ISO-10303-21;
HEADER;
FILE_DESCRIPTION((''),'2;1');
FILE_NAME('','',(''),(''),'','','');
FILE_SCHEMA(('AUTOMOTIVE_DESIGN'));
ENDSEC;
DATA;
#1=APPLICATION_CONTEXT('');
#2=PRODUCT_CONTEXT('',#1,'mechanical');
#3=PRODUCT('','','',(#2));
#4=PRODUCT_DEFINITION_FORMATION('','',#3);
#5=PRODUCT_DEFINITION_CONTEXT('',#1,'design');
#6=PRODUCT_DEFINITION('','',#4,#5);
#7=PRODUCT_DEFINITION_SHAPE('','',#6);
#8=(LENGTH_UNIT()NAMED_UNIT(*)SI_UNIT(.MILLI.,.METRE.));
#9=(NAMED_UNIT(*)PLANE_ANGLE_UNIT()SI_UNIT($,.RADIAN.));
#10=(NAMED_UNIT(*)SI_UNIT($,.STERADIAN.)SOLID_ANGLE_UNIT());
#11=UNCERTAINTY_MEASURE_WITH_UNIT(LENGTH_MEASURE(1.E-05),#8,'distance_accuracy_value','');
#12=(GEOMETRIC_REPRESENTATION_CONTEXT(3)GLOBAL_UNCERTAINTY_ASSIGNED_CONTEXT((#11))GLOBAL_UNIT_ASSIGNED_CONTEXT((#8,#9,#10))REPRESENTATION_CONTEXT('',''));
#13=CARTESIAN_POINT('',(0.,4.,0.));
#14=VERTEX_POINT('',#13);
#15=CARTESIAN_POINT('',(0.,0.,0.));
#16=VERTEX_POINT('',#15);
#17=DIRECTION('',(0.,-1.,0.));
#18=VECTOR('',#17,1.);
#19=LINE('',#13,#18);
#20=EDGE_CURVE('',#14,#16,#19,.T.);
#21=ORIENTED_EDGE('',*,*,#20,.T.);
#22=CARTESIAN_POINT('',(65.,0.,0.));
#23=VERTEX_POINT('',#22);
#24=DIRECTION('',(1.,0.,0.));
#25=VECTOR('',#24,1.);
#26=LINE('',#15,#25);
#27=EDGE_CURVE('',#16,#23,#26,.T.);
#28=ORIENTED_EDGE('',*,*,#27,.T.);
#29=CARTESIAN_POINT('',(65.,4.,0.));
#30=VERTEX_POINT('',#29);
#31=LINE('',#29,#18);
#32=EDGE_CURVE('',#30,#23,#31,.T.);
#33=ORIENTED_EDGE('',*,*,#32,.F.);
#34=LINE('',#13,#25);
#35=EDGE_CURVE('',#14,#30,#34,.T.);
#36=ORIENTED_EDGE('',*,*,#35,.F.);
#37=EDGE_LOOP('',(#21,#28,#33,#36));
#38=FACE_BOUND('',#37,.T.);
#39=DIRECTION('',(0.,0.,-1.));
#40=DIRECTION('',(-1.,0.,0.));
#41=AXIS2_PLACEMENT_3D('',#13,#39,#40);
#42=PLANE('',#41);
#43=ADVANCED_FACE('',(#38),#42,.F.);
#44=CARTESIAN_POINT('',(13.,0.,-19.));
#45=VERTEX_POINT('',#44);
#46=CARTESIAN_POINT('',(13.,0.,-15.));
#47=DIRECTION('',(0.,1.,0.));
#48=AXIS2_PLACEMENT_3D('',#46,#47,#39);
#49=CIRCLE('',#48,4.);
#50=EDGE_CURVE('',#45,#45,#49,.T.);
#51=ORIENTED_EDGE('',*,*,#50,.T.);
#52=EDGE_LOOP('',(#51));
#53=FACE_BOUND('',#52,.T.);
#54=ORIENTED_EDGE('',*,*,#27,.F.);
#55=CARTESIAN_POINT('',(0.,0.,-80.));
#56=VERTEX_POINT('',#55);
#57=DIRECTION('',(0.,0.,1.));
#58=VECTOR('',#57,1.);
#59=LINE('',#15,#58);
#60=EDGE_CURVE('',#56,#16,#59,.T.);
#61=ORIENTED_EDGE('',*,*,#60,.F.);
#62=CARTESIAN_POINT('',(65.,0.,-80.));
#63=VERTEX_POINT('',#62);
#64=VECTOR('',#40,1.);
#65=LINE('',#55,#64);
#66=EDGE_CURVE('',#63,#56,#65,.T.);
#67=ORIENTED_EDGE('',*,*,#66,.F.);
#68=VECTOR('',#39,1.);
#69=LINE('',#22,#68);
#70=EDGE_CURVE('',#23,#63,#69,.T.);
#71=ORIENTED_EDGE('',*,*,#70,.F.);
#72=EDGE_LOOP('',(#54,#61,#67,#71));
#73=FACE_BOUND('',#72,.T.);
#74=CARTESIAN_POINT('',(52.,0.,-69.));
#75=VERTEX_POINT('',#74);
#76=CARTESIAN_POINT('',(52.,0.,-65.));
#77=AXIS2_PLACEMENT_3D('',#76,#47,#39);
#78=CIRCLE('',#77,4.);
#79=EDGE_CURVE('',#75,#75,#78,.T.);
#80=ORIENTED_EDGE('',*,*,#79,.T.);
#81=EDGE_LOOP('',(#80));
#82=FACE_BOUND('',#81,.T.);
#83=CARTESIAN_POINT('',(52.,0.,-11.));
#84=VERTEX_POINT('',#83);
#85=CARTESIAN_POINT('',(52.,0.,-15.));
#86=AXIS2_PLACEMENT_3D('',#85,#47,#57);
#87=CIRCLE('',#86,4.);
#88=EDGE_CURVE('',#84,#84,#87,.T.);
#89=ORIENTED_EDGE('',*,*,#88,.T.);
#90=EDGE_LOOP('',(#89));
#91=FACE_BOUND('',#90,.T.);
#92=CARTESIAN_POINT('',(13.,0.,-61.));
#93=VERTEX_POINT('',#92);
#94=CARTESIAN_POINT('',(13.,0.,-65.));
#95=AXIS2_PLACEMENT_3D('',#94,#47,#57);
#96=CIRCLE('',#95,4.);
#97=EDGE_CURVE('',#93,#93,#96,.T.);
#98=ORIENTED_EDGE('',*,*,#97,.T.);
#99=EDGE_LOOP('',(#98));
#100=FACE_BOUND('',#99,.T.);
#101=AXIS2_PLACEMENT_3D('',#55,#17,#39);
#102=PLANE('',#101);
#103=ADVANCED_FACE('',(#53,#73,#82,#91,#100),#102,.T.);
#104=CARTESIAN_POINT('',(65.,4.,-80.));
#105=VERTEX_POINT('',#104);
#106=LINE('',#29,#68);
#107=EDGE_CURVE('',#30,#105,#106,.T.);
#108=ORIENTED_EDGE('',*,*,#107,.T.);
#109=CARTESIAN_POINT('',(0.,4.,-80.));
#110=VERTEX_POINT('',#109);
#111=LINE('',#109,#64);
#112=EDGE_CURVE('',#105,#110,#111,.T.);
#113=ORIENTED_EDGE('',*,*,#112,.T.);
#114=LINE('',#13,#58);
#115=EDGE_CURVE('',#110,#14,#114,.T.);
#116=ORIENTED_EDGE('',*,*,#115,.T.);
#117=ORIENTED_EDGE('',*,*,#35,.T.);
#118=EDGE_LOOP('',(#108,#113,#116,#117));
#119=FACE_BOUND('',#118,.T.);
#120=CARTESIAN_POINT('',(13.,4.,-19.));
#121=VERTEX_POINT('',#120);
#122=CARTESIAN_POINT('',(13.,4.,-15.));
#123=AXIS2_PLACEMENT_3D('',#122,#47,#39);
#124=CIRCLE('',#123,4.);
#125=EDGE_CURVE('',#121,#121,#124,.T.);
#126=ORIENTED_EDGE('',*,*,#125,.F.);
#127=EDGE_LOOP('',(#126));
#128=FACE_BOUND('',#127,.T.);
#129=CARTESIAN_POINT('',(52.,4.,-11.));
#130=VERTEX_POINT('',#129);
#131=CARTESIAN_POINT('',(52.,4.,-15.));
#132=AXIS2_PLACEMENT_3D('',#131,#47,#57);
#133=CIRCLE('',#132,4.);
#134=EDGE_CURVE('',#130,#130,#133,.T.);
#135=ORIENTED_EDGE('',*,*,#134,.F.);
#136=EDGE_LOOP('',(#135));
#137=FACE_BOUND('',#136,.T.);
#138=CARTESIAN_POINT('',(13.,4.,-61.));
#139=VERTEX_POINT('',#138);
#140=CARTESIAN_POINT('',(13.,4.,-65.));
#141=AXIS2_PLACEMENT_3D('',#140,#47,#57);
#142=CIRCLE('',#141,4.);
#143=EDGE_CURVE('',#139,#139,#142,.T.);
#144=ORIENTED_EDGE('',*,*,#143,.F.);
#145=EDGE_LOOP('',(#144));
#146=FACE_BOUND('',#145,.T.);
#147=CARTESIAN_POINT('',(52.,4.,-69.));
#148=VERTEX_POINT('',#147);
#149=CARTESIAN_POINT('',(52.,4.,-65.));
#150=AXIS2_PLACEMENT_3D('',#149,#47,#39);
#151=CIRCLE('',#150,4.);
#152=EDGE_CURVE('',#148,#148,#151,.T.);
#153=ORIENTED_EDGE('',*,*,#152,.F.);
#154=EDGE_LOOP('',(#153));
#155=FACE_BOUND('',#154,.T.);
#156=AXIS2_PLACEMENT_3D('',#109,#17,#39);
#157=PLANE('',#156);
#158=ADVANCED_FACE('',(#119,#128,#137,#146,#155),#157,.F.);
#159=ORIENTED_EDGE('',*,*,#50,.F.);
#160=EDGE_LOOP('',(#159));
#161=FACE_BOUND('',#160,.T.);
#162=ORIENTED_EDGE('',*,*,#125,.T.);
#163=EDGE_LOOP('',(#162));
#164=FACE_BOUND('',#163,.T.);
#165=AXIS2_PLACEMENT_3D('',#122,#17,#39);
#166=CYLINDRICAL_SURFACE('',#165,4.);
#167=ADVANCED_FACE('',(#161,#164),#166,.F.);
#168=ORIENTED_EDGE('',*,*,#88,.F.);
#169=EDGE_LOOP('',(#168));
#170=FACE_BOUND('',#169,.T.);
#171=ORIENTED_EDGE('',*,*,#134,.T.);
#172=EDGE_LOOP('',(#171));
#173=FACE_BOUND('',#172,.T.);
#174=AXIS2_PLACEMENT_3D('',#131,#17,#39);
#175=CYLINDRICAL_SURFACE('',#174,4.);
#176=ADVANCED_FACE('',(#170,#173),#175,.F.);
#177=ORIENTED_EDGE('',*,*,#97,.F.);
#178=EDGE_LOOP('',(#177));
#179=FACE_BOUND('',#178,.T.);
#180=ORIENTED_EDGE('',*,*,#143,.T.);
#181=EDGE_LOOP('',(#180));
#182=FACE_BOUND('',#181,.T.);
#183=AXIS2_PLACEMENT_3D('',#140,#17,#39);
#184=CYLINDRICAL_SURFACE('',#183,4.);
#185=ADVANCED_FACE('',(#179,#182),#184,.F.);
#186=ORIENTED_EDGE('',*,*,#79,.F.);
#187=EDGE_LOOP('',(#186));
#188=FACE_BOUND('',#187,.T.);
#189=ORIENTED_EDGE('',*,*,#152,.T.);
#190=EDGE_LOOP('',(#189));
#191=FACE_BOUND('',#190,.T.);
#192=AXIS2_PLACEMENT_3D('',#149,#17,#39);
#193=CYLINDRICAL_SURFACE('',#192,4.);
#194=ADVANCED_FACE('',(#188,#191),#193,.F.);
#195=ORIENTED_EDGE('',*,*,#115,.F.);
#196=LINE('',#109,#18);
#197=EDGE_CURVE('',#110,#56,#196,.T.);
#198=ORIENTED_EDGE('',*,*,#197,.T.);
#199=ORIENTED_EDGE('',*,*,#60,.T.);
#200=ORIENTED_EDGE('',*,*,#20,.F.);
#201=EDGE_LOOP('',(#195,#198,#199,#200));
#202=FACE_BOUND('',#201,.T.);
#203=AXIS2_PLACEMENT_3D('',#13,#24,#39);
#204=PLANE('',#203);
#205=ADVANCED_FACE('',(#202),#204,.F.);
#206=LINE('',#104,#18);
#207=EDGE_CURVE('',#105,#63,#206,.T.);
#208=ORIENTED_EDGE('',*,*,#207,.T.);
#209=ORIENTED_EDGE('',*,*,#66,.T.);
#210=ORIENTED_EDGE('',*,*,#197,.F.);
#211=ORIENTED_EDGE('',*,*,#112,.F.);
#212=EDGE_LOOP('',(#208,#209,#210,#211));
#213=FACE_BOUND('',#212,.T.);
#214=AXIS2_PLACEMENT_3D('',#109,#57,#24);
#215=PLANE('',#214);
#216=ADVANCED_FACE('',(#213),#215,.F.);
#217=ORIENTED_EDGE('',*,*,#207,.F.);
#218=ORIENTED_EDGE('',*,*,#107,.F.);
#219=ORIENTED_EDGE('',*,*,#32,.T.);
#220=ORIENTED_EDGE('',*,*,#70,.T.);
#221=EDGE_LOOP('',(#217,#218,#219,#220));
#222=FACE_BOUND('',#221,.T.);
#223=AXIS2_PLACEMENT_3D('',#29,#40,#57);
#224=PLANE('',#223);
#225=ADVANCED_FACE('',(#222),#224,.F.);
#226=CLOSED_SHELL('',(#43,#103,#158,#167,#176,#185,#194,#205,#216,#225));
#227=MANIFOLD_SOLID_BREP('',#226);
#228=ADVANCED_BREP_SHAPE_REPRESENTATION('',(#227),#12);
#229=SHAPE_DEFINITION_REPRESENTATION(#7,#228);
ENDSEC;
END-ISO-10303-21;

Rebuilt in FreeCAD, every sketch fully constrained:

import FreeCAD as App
import Part
import Sketcher

V = App.Vector


def add_polygon(sketch, points):
    """Adds a closed chain of lines whose ends are joined by coincident constraints."""
    first, n = sketch.GeometryCount, len(points)
    for a, b in zip(points, points[1:] + points[:1]):
        sketch.addGeometry(Part.LineSegment(App.Vector(*a, 0), App.Vector(*b, 0)), False)
    for i in range(n):
        sketch.addConstraint(Sketcher.Constraint("Coincident", first + i, 2, first + (i + 1) % n, 1))

doc = App.newDocument("Part")
params = doc.addObject("Spreadsheet::Sheet", "Params")
for row, (alias, value) in enumerate([
    ("sketch1_diameter", "8 mm"),
    ("sketch1_width", "65 mm"),
    ("sketch1_height", "80 mm"),
    ("pad1_length", "4 mm"),
], start=1):
    params.set(f"A{row}", alias)
    params.set(f"B{row}", "=" + value)
    params.setAlias(f"B{row}", alias)

body = doc.addObject("PartDesign::Body", "Body")

# Sketch on XZ plane
sketch1 = doc.addObject("Sketcher::SketchObject", "Sketch")
body.addObject(sketch1)
sketch1.AttachmentSupport = (doc.XZ_Plane, [""])
sketch1.MapMode = "FlatFace"
add_polygon(sketch1, [(0, -80), (0, 0), (65, 0), (65, -80)])  # lines 0-3
sketch1.addGeometry(Part.Circle(V(13, -15, 0), V(0, 0, 1), 4), False)  # 4
sketch1.addGeometry(Part.Circle(V(52, -15, 0), V(0, 0, 1), 4), False)  # 5
sketch1.addGeometry(Part.Circle(V(13, -65, 0), V(0, 0, 1), 4), False)  # 6
sketch1.addGeometry(Part.Circle(V(52, -65, 0), V(0, 0, 1), 4), False)  # 7
sketch1.addConstraint(Sketcher.Constraint("Vertical", 0))
sketch1.addConstraint(Sketcher.Constraint("Horizontal", 1))
sketch1.addConstraint(Sketcher.Constraint("Vertical", 2))
sketch1.addConstraint(Sketcher.Constraint("Horizontal", 3))
sketch1.addConstraint(Sketcher.Constraint("Coincident", 0, 2, -1, 1))
sketch1.addConstraint(Sketcher.Constraint("Equal", 4, 5))
sketch1.addConstraint(Sketcher.Constraint("Equal", 5, 6))
sketch1.addConstraint(Sketcher.Constraint("Equal", 6, 7))
sketch1.addConstraint(Sketcher.Constraint("Horizontal", 4, 3, 5, 3))
sketch1.addConstraint(Sketcher.Constraint("Horizontal", 6, 3, 7, 3))
sketch1.addConstraint(Sketcher.Constraint("Vertical", 4, 3, 6, 3))
sketch1.addConstraint(Sketcher.Constraint("Vertical", 5, 3, 7, 3))
sketch1.addConstraint(Sketcher.Constraint("Diameter", 4, 8.0))
sketch1.addConstraint(Sketcher.Constraint("DistanceX", 1, 1, 1, 2, 65.0))
sketch1.addConstraint(Sketcher.Constraint("DistanceY", 0, 1, 0, 2, 80.0))
sketch1.addConstraint(Sketcher.Constraint("DistanceX", -1, 1, 4, 3, 13.0))
sketch1.addConstraint(Sketcher.Constraint("DistanceY", 4, 3, -1, 1, 15.0))
sketch1.addConstraint(Sketcher.Constraint("DistanceX", -1, 1, 5, 3, 52.0))
sketch1.addConstraint(Sketcher.Constraint("DistanceY", 6, 3, -1, 1, 65.0))
sketch1.setExpression("Constraints[16]", "Params.sketch1_diameter")
sketch1.setExpression("Constraints[17]", "Params.sketch1_width")
sketch1.setExpression("Constraints[18]", "Params.sketch1_height")
pad1 = doc.addObject("PartDesign::Pad", "Pad")
body.addObject(pad1)
pad1.Profile = sketch1
pad1.setExpression("Length", "Params.pad1_length")
pad1.Reversed = True

doc.recompute()
